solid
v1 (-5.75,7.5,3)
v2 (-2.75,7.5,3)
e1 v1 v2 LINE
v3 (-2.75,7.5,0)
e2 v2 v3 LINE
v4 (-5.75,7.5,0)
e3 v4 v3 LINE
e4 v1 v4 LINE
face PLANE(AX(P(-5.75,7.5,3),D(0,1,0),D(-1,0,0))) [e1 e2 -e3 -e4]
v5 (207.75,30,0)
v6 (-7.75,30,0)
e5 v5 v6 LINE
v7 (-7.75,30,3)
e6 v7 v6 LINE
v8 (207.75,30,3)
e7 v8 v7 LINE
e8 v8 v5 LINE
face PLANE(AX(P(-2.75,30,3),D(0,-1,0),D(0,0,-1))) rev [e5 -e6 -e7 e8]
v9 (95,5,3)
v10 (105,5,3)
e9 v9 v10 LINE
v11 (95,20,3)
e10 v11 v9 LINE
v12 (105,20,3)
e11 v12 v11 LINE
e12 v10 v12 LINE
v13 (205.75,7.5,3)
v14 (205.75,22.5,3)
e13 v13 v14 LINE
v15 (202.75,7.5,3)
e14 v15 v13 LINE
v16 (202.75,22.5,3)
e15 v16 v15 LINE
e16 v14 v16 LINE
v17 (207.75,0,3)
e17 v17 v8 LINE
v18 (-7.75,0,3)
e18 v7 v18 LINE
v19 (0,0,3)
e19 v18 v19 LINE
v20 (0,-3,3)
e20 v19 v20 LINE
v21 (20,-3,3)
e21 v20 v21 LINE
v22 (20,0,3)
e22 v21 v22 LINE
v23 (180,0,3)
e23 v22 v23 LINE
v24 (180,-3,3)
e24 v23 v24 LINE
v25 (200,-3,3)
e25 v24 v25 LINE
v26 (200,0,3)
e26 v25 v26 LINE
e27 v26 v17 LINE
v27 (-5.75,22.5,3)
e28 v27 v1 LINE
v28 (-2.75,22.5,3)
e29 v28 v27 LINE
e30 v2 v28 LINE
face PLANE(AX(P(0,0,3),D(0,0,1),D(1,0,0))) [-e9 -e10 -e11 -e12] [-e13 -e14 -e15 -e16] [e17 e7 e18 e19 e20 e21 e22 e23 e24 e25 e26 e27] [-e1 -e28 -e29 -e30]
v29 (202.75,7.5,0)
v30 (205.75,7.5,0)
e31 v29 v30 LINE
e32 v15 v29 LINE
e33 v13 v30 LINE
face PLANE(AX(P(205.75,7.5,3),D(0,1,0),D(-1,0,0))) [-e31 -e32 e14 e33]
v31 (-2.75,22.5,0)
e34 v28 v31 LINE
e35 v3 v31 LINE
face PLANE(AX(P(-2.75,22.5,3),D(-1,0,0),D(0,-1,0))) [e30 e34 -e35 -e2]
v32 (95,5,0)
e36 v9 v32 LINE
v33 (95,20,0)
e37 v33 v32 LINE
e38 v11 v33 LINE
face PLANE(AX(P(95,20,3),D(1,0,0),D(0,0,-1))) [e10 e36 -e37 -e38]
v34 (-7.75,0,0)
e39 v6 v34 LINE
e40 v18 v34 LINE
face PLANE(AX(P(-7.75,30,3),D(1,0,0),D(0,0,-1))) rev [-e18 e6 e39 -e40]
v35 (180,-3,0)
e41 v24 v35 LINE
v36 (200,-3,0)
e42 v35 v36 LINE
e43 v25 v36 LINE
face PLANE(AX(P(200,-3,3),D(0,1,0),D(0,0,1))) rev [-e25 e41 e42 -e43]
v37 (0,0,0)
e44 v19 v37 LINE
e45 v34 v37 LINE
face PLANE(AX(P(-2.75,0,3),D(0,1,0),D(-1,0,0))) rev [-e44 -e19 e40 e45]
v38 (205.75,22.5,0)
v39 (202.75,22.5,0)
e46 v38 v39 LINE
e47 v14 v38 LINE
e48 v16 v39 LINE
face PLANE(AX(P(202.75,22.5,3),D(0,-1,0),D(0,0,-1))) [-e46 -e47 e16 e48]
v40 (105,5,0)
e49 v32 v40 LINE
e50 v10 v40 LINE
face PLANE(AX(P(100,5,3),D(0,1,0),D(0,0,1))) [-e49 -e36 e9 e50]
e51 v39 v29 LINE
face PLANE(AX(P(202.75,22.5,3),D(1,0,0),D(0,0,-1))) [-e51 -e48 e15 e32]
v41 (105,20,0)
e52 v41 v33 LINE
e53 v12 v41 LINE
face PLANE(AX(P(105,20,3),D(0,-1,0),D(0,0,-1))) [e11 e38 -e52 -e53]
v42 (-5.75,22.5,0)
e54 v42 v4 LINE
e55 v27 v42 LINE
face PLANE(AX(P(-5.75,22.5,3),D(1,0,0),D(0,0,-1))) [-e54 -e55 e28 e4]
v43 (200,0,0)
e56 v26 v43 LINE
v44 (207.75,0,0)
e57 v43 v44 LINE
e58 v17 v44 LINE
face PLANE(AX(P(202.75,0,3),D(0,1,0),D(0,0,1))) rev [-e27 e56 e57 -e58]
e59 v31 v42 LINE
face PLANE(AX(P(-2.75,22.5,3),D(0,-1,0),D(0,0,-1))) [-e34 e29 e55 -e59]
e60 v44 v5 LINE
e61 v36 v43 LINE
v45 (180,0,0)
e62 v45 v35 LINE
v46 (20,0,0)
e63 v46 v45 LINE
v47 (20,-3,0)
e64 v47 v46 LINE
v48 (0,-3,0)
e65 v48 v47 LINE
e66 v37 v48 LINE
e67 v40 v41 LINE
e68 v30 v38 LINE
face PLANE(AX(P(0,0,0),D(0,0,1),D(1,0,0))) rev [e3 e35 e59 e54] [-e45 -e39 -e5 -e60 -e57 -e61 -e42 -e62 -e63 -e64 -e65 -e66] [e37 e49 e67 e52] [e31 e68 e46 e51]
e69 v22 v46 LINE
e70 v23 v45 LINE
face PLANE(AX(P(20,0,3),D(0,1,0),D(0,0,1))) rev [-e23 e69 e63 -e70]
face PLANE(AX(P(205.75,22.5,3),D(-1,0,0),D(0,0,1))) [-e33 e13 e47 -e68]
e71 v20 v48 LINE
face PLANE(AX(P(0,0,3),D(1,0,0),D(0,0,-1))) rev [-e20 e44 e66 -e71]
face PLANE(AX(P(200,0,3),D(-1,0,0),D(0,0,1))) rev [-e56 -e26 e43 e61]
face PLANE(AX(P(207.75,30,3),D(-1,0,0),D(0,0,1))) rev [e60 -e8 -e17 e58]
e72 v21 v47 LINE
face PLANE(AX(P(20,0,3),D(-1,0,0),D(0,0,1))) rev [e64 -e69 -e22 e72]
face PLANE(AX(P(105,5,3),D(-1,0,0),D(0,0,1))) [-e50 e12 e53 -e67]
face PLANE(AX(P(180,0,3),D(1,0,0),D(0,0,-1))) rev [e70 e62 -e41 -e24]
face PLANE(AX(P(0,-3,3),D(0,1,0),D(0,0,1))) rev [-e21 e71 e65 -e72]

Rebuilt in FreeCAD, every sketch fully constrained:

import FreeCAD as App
import Part
import Sketcher
from FreeCAD import Vector
Q = App.Units.Quantity


def add_polygon(sketch, points):
    """Adds a closed chain of lines whose ends are joined by coincident constraints."""
    first, n = sketch.GeometryCount, len(points)
    for a, b in zip(points, points[1:] + points[:1]):
        sketch.addGeometry(Part.LineSegment(App.Vector(*a, 0), App.Vector(*b, 0)), False)
    for i in range(n):
        sketch.addConstraint(Sketcher.Constraint("Coincident", first + i, 2, first + (i + 1) % n, 1))

doc = App.newDocument("Part")
body = doc.addObject("PartDesign::Body", "Body")

# Sketch on XY plane
sketch1 = doc.addObject("Sketcher::SketchObject", "Sketch")
body.addObject(sketch1)
sketch1.AttachmentSupport = (doc.XY_Plane, [""])
sketch1.MapMode = "FlatFace"
add_polygon(sketch1, [(20, 0), (180, 0), (180, -3), (200, -3), (200, 0), (207.75, 0), (207.75, 30), (-7.75, 30), (-7.75, 0), (0, 0), (0, -3), (20, -3)])  # lines 0-11
add_polygon(sketch1, [(105, 5), (95, 5), (95, 20), (105, 20)])  # lines 12-15
add_polygon(sketch1, [(-2.75, 7.5), (-5.75, 7.5), (-5.75, 22.5), (-2.75, 22.5)])  # lines 16-19
add_polygon(sketch1, [(205.75, 7.5), (202.75, 7.5), (202.75, 22.5), (205.75, 22.5)])  # lines 20-23
sketch1.addConstraint([
    Sketcher.Constraint("Horizontal", 0),
    Sketcher.Constraint("Vertical", 1),
    Sketcher.Constraint("Horizontal", 2),
    Sketcher.Constraint("Vertical", 3),
    Sketcher.Constraint("Horizontal", 4),
    Sketcher.Constraint("Vertical", 5),
    Sketcher.Constraint("Horizontal", 6),
    Sketcher.Constraint("Vertical", 7),
    Sketcher.Constraint("Horizontal", 8),
    Sketcher.Constraint("Vertical", 9),
    Sketcher.Constraint("Horizontal", 10),
    Sketcher.Constraint("Vertical", 11),
    Sketcher.Constraint("Horizontal", 12),
    Sketcher.Constraint("Vertical", 13),
    Sketcher.Constraint("Horizontal", 14),
    Sketcher.Constraint("Vertical", 15),
    Sketcher.Constraint("Horizontal", 16),
    Sketcher.Constraint("Vertical", 17),
    Sketcher.Constraint("Horizontal", 18),
    Sketcher.Constraint("Vertical", 19),
    Sketcher.Constraint("Horizontal", 20),
    Sketcher.Constraint("Vertical", 21),
    Sketcher.Constraint("Horizontal", 22),
    Sketcher.Constraint("Vertical", 23),
    Sketcher.Constraint("Coincident", 8, 2, -1, 1),
    Sketcher.Constraint("PointOnObject", 0, 2, -1),
    Sketcher.Constraint("PointOnObject", 3, 2, -1),
    Sketcher.Constraint("Horizontal", 2, 2, 9, 2),
    Sketcher.Constraint("Horizontal", 19, 2, 20, 2),
    Sketcher.Constraint("Horizontal", 18, 2, 21, 2),
    Sketcher.Constraint("Equal", 4, 8),
    Sketcher.Constraint("Equal", 2, 10),
    Sketcher.Constraint("Equal", 18, 20),
    Sketcher.Constraint("Equal", 22, 1),
    Sketcher.Constraint("Equal", 15, 17),
    Sketcher.Constraint("DistanceX", 0, 1, 0, 2, Q("160 mm")),
    Sketcher.Constraint("DistanceX", 2, 1, 2, 2, Q("20 mm")),
    Sketcher.Constraint("DistanceX", 12, 2, 12, 1, Q("10 mm")),
    Sketcher.Constraint("DistanceX", 16, 2, 16, 1, Q("3 mm")),
    Sketcher.Constraint("DistanceY", 5, 1, 5, 2, Q("30 mm")),
    Sketcher.Constraint("DistanceY", 13, 1, 13, 2, Q("15 mm")),
    Sketcher.Constraint("DistanceX", 6, 2, 6, 1, Q("215.5 mm")),
    Sketcher.Constraint("DistanceX", -1, 1, 12, 2, Q("95 mm")),
    Sketcher.Constraint("DistanceY", -1, 1, 12, 2, Q("5 mm")),
    Sketcher.Constraint("DistanceX", 7, 2, 16, 2, Q("2 mm")),
    Sketcher.Constraint("DistanceX", 20, 2, 4, 2, Q("5 mm")),
    Sketcher.Constraint("DistanceY", -1, 1, 16, 2, Q("7.5 mm")),
])
pad1 = doc.addObject("PartDesign::Pad", "Pad")
body.addObject(pad1)
pad1.Profile = sketch1
pad1.Length = 3

doc.recompute()
